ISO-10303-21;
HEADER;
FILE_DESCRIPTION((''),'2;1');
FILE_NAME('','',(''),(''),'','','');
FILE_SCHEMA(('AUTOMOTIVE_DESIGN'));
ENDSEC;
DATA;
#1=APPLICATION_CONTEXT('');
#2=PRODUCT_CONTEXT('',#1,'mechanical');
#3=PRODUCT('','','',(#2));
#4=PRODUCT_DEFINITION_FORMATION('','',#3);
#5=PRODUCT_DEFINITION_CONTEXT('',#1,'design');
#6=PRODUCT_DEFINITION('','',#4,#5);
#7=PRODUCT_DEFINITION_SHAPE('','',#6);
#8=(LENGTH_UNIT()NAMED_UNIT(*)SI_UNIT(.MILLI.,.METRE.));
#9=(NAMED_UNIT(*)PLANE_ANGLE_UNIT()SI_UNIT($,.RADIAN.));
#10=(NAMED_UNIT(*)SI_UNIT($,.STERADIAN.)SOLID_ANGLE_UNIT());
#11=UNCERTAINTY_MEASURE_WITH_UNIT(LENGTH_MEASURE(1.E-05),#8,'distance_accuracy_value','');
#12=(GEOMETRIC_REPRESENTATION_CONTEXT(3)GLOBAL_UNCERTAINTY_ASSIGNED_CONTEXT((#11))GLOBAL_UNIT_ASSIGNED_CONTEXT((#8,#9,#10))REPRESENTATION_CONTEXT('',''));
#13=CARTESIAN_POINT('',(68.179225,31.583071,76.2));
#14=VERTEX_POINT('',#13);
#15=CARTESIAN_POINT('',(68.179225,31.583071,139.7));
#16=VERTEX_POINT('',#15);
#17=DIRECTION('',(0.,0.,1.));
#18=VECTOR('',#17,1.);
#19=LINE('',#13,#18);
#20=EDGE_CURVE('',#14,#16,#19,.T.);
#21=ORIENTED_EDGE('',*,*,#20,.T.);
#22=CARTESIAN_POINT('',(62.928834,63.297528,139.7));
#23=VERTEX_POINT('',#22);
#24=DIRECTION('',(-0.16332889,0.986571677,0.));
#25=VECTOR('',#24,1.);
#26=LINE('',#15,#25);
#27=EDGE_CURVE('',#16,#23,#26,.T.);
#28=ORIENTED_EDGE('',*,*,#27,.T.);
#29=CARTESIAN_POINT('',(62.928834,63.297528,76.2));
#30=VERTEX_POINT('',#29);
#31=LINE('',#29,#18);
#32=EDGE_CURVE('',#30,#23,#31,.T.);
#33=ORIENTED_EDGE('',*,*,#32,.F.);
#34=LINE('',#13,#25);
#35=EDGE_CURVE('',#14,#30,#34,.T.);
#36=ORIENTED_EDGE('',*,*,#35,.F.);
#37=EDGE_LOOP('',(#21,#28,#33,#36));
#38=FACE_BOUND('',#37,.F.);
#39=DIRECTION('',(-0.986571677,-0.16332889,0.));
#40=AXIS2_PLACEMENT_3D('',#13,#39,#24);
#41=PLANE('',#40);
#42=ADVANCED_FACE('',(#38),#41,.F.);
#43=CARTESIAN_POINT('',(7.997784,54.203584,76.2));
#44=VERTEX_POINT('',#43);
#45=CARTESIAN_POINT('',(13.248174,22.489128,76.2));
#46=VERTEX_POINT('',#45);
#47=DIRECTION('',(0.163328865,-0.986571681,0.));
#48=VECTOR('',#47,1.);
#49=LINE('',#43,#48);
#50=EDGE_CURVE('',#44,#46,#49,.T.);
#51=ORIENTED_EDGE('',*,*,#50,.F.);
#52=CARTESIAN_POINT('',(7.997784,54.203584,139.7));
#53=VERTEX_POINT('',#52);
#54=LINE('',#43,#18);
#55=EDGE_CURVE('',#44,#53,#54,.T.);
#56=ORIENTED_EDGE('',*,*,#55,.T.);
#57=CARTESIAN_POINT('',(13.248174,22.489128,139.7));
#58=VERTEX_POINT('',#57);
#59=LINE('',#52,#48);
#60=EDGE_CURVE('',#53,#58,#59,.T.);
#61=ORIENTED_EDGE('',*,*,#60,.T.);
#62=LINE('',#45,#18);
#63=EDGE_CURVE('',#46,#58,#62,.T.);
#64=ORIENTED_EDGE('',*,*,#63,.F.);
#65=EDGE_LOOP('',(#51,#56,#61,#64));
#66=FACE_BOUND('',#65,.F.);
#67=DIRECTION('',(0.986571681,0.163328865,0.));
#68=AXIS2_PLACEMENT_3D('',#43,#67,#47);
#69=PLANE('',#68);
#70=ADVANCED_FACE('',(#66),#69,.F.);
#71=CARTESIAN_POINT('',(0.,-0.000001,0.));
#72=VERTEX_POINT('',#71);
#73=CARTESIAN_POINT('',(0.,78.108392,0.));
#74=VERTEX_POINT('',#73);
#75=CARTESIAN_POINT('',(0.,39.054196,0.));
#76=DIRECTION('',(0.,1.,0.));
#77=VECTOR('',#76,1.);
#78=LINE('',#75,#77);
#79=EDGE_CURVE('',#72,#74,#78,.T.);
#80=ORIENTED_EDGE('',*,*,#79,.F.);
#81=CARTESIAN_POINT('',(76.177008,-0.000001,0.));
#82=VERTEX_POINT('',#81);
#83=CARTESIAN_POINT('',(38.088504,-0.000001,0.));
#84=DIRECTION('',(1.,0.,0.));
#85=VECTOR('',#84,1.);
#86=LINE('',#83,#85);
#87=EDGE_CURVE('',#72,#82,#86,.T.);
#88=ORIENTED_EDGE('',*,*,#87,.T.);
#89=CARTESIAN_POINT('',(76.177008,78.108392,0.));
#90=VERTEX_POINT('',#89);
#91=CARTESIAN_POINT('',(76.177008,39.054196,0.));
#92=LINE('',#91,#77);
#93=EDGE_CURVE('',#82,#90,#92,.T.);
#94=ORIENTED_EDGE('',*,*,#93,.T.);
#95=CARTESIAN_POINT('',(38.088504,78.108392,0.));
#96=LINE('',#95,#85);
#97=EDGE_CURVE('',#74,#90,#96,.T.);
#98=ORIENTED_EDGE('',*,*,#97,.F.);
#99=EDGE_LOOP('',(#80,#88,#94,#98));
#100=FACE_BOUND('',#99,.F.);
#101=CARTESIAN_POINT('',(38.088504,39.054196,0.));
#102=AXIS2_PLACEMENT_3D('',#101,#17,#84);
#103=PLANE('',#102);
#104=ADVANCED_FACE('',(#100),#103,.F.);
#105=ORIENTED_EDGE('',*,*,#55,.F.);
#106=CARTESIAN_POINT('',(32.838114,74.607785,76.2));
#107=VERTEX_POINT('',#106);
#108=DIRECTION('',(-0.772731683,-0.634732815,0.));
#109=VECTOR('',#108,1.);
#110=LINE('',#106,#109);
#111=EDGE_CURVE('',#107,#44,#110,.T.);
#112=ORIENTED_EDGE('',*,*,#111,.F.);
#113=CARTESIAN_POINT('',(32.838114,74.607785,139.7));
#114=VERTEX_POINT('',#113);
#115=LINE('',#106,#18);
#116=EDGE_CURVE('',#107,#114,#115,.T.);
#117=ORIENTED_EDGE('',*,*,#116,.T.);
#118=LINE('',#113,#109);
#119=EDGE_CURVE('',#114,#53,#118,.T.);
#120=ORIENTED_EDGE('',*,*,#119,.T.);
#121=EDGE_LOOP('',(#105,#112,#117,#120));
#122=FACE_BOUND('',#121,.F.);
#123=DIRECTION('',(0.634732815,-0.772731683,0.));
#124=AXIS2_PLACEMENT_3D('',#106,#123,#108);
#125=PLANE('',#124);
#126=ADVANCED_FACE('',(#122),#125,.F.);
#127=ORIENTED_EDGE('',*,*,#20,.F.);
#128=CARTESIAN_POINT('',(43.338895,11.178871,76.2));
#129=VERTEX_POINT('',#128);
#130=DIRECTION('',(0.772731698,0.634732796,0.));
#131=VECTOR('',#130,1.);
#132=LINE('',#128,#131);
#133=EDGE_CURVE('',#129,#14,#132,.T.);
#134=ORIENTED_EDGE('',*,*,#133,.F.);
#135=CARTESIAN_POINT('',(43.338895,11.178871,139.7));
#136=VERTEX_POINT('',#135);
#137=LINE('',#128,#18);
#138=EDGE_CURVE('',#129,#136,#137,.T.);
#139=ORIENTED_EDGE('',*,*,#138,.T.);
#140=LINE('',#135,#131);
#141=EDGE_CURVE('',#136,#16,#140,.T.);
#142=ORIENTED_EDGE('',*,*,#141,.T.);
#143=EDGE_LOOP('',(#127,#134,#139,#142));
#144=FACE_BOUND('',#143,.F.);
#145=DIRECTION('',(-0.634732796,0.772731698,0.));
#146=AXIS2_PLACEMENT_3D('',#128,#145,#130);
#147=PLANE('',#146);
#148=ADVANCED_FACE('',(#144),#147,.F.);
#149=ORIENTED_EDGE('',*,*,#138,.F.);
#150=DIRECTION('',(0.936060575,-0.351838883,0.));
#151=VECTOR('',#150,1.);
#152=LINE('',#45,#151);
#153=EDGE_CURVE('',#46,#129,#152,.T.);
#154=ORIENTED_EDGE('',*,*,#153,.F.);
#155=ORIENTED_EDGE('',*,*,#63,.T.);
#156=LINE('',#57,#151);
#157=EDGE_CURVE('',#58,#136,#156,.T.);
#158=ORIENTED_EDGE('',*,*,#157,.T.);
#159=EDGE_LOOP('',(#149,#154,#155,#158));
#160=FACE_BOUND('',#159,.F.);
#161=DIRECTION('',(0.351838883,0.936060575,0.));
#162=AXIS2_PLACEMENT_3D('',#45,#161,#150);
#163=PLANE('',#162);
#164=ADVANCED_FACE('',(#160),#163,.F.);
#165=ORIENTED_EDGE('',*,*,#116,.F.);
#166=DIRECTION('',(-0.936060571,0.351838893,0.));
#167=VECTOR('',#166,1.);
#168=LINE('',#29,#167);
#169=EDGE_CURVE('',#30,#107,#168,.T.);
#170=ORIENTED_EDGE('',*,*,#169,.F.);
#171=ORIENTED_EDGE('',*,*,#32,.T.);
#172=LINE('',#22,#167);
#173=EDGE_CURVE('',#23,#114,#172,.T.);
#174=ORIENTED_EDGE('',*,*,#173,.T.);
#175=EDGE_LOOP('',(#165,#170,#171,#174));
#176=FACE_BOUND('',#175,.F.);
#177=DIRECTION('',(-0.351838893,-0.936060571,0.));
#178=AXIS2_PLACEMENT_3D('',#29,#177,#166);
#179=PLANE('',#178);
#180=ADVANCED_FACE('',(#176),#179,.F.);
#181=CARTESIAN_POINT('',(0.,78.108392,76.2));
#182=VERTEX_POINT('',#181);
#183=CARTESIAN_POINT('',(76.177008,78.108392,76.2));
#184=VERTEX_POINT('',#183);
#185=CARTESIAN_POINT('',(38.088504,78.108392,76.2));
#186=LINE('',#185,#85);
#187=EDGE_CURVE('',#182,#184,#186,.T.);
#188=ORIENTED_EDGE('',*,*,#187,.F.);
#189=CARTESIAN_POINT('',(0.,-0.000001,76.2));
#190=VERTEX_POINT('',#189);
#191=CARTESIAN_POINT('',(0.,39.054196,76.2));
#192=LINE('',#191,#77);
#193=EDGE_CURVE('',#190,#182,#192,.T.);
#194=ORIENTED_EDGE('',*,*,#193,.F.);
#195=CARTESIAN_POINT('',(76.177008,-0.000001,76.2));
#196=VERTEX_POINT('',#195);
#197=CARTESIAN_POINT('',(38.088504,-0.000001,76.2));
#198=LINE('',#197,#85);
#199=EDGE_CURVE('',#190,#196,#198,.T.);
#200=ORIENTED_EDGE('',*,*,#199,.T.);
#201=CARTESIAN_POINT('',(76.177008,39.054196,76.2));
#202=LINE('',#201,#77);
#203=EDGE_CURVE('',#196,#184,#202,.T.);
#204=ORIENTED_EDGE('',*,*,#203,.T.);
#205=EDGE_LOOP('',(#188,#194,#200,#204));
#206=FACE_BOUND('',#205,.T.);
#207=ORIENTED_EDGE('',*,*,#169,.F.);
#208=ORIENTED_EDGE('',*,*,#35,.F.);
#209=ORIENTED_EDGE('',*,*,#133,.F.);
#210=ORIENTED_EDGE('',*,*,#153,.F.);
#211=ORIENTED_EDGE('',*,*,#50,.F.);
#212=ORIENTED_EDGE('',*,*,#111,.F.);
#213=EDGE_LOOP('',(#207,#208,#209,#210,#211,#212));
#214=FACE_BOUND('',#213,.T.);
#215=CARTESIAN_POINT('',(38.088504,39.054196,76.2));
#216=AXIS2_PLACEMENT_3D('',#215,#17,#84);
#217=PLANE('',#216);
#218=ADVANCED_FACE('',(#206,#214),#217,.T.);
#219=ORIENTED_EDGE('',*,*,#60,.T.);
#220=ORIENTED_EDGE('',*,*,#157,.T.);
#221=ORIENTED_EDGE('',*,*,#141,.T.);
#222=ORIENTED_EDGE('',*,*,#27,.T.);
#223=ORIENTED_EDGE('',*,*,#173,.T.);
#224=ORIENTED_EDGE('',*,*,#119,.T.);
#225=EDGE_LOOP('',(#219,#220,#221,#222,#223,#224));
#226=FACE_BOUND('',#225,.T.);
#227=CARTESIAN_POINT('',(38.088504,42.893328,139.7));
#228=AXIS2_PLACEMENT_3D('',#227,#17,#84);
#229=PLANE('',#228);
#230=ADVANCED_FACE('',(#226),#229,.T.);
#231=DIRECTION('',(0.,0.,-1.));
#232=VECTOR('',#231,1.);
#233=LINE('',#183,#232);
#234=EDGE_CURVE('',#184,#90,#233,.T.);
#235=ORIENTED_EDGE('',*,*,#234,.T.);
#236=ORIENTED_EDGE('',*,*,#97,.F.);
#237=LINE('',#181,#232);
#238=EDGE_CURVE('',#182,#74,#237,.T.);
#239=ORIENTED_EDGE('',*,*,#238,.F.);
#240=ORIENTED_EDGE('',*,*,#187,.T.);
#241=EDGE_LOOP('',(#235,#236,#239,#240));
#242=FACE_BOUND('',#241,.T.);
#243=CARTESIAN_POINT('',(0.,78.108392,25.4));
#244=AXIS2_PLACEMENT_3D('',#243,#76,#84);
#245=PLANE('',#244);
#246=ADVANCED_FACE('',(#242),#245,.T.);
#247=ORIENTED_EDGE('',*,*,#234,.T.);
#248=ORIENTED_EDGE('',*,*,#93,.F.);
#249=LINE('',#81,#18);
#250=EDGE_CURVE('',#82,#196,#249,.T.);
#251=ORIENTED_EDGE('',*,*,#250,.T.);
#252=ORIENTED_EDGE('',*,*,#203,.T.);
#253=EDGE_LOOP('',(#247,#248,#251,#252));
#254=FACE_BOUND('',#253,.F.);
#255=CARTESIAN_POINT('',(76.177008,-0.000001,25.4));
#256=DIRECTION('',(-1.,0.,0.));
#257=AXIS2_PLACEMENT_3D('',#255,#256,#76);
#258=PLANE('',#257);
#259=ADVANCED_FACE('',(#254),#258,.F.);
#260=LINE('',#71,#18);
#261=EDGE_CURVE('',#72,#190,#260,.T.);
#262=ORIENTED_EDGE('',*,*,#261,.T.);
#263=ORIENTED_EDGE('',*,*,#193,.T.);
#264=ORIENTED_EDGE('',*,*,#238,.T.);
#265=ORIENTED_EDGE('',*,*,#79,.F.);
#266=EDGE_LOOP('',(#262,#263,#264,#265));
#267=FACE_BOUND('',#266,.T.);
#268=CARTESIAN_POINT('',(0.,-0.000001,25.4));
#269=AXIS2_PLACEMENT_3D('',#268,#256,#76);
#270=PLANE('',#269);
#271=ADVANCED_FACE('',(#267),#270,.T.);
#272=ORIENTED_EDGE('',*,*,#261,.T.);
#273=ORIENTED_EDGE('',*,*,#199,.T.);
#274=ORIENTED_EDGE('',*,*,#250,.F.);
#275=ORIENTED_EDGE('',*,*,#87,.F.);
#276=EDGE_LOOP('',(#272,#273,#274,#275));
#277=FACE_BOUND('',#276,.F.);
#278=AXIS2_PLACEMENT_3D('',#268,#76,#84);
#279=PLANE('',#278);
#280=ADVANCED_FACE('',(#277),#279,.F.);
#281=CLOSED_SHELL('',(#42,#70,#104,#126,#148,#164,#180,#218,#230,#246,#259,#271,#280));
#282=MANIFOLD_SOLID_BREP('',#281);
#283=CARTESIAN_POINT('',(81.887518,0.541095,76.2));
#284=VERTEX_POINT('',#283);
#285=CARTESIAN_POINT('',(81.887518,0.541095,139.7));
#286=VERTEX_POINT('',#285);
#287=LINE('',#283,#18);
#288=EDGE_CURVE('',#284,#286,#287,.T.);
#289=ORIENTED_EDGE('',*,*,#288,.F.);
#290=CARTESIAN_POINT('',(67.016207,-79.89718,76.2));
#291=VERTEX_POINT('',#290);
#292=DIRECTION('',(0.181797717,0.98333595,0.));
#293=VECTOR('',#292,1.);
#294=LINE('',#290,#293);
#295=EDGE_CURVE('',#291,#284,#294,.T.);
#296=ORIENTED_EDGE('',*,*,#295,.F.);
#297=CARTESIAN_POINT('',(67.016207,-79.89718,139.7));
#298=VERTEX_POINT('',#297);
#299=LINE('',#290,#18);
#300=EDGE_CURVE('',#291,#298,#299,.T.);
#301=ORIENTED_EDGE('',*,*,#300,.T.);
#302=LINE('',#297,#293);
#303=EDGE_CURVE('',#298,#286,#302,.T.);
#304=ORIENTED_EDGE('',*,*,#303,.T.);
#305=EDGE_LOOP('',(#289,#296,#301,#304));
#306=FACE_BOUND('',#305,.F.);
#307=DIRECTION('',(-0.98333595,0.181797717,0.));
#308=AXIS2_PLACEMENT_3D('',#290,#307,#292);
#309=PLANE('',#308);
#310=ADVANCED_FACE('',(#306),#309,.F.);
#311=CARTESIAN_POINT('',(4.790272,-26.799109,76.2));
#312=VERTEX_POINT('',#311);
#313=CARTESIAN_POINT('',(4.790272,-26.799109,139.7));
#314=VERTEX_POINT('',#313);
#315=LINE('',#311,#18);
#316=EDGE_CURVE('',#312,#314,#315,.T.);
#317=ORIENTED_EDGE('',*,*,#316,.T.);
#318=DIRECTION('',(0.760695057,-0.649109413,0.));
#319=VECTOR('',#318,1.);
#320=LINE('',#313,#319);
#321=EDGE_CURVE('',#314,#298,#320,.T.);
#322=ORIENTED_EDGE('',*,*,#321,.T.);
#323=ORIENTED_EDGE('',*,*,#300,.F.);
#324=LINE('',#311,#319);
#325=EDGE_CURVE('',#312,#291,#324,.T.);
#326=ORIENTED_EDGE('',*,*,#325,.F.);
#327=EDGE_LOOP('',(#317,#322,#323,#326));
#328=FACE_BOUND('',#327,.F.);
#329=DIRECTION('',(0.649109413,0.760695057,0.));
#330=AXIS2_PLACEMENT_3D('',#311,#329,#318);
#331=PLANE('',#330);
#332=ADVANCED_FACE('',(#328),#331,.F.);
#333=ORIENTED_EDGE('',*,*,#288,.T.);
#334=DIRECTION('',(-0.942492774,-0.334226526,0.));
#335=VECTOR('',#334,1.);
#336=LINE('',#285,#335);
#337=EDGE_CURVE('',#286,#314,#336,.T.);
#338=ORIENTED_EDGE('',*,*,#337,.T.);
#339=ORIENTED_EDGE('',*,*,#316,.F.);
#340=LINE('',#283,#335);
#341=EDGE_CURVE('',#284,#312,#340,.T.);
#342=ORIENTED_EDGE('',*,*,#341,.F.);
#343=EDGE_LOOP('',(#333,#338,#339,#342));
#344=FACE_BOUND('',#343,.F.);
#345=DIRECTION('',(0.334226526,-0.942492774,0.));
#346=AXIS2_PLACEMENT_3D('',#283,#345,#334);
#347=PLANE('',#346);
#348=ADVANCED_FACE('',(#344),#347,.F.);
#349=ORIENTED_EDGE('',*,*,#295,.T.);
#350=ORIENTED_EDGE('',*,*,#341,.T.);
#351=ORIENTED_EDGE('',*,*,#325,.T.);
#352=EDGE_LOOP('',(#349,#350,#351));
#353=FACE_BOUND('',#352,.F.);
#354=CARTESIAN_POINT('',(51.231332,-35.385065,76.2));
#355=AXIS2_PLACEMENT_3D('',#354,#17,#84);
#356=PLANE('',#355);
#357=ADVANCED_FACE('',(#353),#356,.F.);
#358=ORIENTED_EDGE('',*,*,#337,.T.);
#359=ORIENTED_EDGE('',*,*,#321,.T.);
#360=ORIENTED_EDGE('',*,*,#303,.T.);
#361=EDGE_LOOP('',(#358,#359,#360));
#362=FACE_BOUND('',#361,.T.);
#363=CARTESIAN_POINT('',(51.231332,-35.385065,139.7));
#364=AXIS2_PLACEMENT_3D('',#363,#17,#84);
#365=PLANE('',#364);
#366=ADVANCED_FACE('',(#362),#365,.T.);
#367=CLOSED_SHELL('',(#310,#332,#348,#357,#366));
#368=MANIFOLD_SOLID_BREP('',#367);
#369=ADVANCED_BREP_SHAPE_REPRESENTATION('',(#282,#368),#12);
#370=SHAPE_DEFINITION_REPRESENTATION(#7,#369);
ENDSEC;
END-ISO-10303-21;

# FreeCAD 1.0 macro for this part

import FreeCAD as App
import Part
import Sketcher
from FreeCAD import Vector
Q = App.Units.Quantity


def add_polygon(sketch, points):
    """Adds a closed chain of lines whose ends are joined by coincident constraints."""
    first, n = sketch.GeometryCount, len(points)
    for a, b in zip(points, points[1:] + points[:1]):
        sketch.addGeometry(Part.LineSegment(App.Vector(*a, 0), App.Vector(*b, 0)), False)
    for i in range(n):
        sketch.addConstraint(Sketcher.Constraint("Coincident", first + i, 2, first + (i + 1) % n, 1))

doc = App.newDocument("Part")
body = doc.addObject("PartDesign::Body", "Body")
body.AllowCompound = True

# Sketch on XY plane
sketch1 = doc.addObject("Sketcher::SketchObject", "Sketch")
body.addObject(sketch1)
sketch1.AttachmentSupport = (doc.XY_Plane, [""])
sketch1.MapMode = "FlatFace"
add_polygon(sketch1, [(0, 78.108392), (0, 0), (76.177008, 0), (76.177008, 78.108392)])  # lines 0-3
sketch1.addConstraint([
    Sketcher.Constraint("Vertical", 0),
    Sketcher.Constraint("Horizontal", 1),
    Sketcher.Constraint("Vertical", 2),
    Sketcher.Constraint("Horizontal", 3),
    Sketcher.Constraint("Coincident", 0, 2, -1, 1),
    Sketcher.Constraint("DistanceX", 1, 1, 1, 2, Q("76.177008 mm")),
    Sketcher.Constraint("DistanceY", 0, 2, 0, 1, Q("78.108393 mm")),
])
pad1 = doc.addObject("PartDesign::Pad", "Pad")
body.addObject(pad1)
pad1.Profile = sketch1
pad1.Length = Q("1 in")

# Sketch on XY plane
sketch2 = doc.addObject("Sketcher::SketchObject", "Sketch001")
body.addObject(sketch2)
sketch2.AttachmentSupport = (doc.XY_Plane, [""])
sketch2.MapMode = "FlatFace"
sketch2.AttachmentOffset = App.Placement(Vector(0, 0, 1 * 25.4), App.Rotation())
add_polygon(sketch2, [(0, 78.108392), (0, 0), (76.177008, 0), (76.177008, 78.108392)])  # lines 0-3
sketch2.addConstraint([
    Sketcher.Constraint("Vertical", 0),
    Sketcher.Constraint("Horizontal", 1),
    Sketcher.Constraint("Vertical", 2),
    Sketcher.Constraint("Horizontal", 3),
    Sketcher.Constraint("Coincident", 0, 2, -1, 1),
    Sketcher.Constraint("DistanceX", 1, 1, 1, 2, Q("76.177008 mm")),
    Sketcher.Constraint("DistanceY", 0, 2, 0, 1, Q("78.108393 mm")),
])
pad2 = doc.addObject("PartDesign::Pad", "Pad001")
body.addObject(pad2)
pad2.Profile = sketch2
pad2.Length = Q("2 in")

# Sketch on XY plane
sketch3 = doc.addObject("Sketcher::SketchObject", "Sketch002")
body.addObject(sketch3)
sketch3.AttachmentSupport = (doc.XY_Plane, [""])
sketch3.MapMode = "FlatFace"
sketch3.AttachmentOffset = App.Placement(Vector(0, 0, 3 * 25.4), App.Rotation())
add_polygon(sketch3, [(4.790272, -26.799109), (67.016207, -79.89718), (81.887518, 0.541095)])  # lines 0-2
add_polygon(sketch3, [(13.248174, 22.489128), (43.338895, 11.178871), (68.179225, 31.583071), (62.928834, 63.297528), (32.838114, 74.607785), (7.997784, 54.203584)])  # lines 3-8
sketch3.addConstraint([
    Sketcher.Constraint("Parallel", 3, 6),
    Sketcher.Constraint("Parallel", 4, 7),
    Sketcher.Constraint("Parallel", 5, 8),
    Sketcher.Constraint("Equal", 0, 1),
    Sketcher.Constraint("Equal", 1, 2),
    Sketcher.Constraint("Equal", 3, 4),
    Sketcher.Constraint("Equal", 4, 5),
    Sketcher.Constraint("Equal", 5, 6),
    Sketcher.Constraint("DistanceY", 3, 2, 4, 2, Q("20.4042 mm")),
    Sketcher.Constraint("Distance", 0, Q("81.801419 mm")),
    Sketcher.Constraint("DistanceY", 0, 2, -1, 1, Q("79.89718 mm")),
    Sketcher.Constraint("DistanceX", -1, 1, 1, 2, Q("81.887518 mm")),
    Sketcher.Constraint("DistanceY", 2, 2, -1, 1, Q("26.799109 mm")),
    Sketcher.Constraint("DistanceY", -1, 1, 3, 2, Q("11.178871 mm")),
    Sketcher.Constraint("DistanceY", -1, 1, 8, 2, Q("22.489128 mm")),
    Sketcher.Constraint("DistanceX", 3, 2, 0, 2, Q("23.677312 mm")),
    Sketcher.Constraint("DistanceX", 3, 2, 4, 2, Q("24.84033 mm")),
    Sketcher.Constraint("DistanceX", 5, 2, 4, 2, Q("5.250391 mm")),
])
pad3 = doc.addObject("PartDesign::Pad", "Pad002")
body.addObject(pad3)
pad3.Profile = sketch3
pad3.Length = Q("2.5 in")

doc.recompute()
